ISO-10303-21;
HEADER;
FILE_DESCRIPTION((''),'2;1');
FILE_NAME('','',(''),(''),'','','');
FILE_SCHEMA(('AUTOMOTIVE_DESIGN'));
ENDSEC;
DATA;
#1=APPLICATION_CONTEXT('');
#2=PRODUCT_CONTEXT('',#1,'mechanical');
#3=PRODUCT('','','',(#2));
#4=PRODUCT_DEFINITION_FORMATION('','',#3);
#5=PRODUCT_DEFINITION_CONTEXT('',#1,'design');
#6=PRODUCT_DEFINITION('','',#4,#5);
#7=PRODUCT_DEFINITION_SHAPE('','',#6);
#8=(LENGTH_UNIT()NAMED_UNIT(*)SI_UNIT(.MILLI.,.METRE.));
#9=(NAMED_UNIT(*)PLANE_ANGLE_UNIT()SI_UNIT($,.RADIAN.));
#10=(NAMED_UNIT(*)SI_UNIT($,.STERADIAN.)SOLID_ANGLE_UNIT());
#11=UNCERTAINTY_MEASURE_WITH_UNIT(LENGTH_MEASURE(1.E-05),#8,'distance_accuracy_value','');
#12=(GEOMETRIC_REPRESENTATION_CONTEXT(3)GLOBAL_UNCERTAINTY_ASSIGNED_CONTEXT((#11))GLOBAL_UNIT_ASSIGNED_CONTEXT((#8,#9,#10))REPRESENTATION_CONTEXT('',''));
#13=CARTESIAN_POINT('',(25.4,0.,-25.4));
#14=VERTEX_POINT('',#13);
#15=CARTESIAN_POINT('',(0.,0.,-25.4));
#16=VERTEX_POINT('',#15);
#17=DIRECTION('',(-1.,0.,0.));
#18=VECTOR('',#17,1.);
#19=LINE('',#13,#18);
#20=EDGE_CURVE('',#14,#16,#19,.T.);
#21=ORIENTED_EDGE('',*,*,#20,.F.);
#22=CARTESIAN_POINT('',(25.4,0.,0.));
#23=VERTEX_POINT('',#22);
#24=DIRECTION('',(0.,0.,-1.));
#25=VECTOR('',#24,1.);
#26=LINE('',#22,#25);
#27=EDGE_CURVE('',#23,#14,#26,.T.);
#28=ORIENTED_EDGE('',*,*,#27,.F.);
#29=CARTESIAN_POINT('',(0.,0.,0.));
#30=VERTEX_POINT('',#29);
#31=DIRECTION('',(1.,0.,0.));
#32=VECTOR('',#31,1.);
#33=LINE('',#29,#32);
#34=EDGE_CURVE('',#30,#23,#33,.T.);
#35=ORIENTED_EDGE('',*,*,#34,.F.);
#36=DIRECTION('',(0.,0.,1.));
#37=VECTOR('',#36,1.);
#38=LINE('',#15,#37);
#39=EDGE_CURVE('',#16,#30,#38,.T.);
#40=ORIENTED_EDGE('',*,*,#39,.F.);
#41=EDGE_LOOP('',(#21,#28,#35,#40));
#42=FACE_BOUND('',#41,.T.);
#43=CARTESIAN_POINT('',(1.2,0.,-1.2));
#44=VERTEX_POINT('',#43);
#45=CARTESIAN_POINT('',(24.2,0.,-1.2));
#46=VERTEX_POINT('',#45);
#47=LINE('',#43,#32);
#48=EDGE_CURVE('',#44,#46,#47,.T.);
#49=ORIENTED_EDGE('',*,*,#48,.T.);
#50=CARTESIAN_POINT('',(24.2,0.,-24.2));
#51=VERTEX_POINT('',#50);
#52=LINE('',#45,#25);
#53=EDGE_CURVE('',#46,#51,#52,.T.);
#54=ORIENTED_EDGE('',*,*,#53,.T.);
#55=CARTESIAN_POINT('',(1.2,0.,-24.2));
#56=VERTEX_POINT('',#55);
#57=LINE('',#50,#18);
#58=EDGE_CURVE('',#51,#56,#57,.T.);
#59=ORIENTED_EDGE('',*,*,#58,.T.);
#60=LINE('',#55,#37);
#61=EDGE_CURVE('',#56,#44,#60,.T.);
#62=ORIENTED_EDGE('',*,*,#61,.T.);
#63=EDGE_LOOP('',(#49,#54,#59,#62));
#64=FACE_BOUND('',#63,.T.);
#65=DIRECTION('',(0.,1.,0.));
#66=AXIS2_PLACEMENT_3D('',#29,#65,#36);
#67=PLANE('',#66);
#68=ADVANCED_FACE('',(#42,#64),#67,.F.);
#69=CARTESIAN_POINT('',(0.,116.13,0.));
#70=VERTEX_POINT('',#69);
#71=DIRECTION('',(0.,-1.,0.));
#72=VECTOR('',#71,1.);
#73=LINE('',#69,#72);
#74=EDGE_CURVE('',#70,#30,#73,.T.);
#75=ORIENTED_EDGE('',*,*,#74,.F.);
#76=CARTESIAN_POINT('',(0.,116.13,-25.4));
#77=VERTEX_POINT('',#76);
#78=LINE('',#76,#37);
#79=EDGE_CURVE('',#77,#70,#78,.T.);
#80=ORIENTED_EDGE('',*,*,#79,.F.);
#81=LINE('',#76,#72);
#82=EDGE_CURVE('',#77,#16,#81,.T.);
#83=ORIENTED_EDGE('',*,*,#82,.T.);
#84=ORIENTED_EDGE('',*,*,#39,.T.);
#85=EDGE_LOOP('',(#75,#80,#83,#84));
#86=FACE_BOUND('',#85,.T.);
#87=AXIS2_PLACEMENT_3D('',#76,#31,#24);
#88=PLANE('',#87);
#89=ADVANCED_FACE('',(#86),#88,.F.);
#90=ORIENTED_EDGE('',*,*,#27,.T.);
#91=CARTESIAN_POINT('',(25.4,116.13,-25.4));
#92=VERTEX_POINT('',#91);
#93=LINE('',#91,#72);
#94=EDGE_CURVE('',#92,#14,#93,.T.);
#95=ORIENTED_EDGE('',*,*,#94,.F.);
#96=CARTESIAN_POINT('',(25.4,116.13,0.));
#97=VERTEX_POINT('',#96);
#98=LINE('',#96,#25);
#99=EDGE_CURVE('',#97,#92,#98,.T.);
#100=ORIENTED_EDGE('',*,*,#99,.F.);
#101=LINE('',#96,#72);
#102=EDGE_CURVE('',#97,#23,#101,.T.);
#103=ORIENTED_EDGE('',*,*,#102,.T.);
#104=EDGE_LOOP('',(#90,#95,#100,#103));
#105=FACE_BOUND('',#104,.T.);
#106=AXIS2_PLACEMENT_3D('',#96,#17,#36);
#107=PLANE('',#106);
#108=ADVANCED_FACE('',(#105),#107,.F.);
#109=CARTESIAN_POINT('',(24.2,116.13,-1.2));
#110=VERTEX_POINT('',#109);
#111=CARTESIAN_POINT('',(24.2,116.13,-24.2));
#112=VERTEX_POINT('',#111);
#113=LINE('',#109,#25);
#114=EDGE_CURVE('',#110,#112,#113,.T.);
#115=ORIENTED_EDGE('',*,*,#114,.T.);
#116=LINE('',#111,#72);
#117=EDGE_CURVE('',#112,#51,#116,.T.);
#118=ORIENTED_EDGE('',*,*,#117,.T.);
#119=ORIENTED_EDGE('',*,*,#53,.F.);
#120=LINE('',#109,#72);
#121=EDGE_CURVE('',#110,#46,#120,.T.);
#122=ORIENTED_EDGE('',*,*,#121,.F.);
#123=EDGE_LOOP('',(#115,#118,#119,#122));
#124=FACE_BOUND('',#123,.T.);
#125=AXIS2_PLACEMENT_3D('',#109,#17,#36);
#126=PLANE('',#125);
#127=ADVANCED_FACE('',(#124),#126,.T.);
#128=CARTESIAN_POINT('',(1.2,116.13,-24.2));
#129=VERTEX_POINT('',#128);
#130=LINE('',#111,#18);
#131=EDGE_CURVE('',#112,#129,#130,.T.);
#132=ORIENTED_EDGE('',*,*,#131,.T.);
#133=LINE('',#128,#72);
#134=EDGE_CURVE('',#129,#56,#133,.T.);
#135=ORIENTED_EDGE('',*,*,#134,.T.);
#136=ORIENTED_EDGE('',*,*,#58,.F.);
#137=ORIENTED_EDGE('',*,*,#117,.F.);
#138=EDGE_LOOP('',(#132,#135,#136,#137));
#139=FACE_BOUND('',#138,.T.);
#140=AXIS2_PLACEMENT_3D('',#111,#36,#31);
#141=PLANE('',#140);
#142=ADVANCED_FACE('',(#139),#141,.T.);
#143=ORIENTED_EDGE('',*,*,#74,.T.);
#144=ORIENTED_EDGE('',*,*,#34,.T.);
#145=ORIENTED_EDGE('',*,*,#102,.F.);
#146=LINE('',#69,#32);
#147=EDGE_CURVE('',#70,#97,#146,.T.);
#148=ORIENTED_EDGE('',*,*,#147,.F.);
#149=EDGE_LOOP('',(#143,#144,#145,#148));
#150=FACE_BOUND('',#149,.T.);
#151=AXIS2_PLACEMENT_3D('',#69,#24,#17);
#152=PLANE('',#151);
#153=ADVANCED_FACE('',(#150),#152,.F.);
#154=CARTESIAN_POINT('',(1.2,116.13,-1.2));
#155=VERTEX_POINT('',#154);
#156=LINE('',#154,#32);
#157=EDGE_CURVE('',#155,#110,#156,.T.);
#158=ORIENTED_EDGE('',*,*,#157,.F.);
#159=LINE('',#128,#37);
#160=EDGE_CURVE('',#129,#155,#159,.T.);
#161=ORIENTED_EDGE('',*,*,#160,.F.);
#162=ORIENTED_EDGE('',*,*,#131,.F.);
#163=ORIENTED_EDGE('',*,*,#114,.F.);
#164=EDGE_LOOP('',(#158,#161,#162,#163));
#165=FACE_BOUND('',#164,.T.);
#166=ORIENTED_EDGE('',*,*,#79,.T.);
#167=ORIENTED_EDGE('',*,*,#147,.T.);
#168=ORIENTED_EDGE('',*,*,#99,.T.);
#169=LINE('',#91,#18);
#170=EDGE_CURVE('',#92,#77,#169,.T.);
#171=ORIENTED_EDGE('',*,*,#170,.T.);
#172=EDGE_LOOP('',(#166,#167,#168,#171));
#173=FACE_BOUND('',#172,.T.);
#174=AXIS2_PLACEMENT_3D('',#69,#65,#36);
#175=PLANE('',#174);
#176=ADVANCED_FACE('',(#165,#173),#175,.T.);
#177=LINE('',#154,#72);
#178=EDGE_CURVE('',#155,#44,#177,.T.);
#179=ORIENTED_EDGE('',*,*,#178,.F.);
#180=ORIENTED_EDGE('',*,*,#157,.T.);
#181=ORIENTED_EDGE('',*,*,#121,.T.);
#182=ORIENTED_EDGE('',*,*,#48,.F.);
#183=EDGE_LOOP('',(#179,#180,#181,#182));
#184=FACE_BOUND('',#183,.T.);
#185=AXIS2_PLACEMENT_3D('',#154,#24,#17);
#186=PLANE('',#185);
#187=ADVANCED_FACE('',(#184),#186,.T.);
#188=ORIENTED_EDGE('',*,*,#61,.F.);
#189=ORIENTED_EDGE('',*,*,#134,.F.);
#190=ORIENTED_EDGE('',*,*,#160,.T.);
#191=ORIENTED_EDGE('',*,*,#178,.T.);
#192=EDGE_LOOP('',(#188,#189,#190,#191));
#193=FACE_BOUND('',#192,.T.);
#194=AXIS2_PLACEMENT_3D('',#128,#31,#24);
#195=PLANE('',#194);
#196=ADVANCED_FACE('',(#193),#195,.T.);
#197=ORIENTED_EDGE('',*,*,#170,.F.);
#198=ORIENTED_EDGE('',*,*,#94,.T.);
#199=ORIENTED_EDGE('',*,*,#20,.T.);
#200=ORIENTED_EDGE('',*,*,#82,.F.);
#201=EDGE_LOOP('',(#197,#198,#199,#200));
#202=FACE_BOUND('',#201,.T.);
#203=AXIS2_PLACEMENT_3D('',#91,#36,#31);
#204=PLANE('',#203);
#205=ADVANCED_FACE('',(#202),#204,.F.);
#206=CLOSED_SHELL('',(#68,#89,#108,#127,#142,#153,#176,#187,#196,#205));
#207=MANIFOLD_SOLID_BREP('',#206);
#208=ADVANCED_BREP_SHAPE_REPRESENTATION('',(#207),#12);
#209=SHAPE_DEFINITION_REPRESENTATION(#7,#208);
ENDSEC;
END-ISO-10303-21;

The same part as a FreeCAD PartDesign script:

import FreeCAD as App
import Part
import Sketcher
from FreeCAD import Vector


def add_polygon(sketch, points):
    """Adds a closed chain of lines whose ends are joined by coincident constraints."""
    first, n = sketch.GeometryCount, len(points)
    for a, b in zip(points, points[1:] + points[:1]):
        sketch.addGeometry(Part.LineSegment(App.Vector(*a, 0), App.Vector(*b, 0)), False)
    for i in range(n):
        sketch.addConstraint(Sketcher.Constraint("Coincident", first + i, 2, first + (i + 1) % n, 1))

doc = App.newDocument("Part")
body = doc.addObject("PartDesign::Body", "Body")

# Sketch on XZ plane
sketch1 = body.newObject("Sketcher::SketchObject", "Sketch")
sketch1.AttachmentSupport = (doc.getObject("XZ_Plane"), [""])
sketch1.MapMode = "FlatFace"
add_polygon(sketch1, [(0, -25), (0, 0), (25, 0), (25, -25)])  # lines 0-3
add_polygon(sketch1, [(24, -1), (1, -1), (1, -24), (24, -24)])  # lines 4-7
sketch1.addConstraint(Sketcher.Constraint("Vertical", 0))
sketch1.addConstraint(Sketcher.Constraint("Horizontal", 1))
sketch1.addConstraint(Sketcher.Constraint("Vertical", 2))
sketch1.addConstraint(Sketcher.Constraint("Horizontal", 3))
sketch1.addConstraint(Sketcher.Constraint("Horizontal", 4))
sketch1.addConstraint(Sketcher.Constraint("Vertical", 5))
sketch1.addConstraint(Sketcher.Constraint("Horizontal", 6))
sketch1.addConstraint(Sketcher.Constraint("Vertical", 7))
sketch1.addConstraint(Sketcher.Constraint("Coincident", 0, 2, -1, 1))
sketch1.addConstraint(Sketcher.Constraint("Equal", 3, 0))
sketch1.addConstraint(Sketcher.Constraint("Equal", 6, 5))
sketch1.addConstraint(Sketcher.Constraint("DistanceX", 4, 2, 4, 1, 23.0))
sketch1.addConstraint(Sketcher.Constraint("DistanceX", 1, 1, 1, 2, 25.4))
sketch1.addConstraint(Sketcher.Constraint("DistanceX", -1, 1, 4, 2, 1.2))
sketch1.addConstraint(Sketcher.Constraint("DistanceY", 4, 2, -1, 1, 1.2))
pad1 = body.newObject("PartDesign::Pad", "Pad")
pad1.Profile = sketch1
pad1.Length = 116.13
pad1.Reversed = True

doc.recompute()
